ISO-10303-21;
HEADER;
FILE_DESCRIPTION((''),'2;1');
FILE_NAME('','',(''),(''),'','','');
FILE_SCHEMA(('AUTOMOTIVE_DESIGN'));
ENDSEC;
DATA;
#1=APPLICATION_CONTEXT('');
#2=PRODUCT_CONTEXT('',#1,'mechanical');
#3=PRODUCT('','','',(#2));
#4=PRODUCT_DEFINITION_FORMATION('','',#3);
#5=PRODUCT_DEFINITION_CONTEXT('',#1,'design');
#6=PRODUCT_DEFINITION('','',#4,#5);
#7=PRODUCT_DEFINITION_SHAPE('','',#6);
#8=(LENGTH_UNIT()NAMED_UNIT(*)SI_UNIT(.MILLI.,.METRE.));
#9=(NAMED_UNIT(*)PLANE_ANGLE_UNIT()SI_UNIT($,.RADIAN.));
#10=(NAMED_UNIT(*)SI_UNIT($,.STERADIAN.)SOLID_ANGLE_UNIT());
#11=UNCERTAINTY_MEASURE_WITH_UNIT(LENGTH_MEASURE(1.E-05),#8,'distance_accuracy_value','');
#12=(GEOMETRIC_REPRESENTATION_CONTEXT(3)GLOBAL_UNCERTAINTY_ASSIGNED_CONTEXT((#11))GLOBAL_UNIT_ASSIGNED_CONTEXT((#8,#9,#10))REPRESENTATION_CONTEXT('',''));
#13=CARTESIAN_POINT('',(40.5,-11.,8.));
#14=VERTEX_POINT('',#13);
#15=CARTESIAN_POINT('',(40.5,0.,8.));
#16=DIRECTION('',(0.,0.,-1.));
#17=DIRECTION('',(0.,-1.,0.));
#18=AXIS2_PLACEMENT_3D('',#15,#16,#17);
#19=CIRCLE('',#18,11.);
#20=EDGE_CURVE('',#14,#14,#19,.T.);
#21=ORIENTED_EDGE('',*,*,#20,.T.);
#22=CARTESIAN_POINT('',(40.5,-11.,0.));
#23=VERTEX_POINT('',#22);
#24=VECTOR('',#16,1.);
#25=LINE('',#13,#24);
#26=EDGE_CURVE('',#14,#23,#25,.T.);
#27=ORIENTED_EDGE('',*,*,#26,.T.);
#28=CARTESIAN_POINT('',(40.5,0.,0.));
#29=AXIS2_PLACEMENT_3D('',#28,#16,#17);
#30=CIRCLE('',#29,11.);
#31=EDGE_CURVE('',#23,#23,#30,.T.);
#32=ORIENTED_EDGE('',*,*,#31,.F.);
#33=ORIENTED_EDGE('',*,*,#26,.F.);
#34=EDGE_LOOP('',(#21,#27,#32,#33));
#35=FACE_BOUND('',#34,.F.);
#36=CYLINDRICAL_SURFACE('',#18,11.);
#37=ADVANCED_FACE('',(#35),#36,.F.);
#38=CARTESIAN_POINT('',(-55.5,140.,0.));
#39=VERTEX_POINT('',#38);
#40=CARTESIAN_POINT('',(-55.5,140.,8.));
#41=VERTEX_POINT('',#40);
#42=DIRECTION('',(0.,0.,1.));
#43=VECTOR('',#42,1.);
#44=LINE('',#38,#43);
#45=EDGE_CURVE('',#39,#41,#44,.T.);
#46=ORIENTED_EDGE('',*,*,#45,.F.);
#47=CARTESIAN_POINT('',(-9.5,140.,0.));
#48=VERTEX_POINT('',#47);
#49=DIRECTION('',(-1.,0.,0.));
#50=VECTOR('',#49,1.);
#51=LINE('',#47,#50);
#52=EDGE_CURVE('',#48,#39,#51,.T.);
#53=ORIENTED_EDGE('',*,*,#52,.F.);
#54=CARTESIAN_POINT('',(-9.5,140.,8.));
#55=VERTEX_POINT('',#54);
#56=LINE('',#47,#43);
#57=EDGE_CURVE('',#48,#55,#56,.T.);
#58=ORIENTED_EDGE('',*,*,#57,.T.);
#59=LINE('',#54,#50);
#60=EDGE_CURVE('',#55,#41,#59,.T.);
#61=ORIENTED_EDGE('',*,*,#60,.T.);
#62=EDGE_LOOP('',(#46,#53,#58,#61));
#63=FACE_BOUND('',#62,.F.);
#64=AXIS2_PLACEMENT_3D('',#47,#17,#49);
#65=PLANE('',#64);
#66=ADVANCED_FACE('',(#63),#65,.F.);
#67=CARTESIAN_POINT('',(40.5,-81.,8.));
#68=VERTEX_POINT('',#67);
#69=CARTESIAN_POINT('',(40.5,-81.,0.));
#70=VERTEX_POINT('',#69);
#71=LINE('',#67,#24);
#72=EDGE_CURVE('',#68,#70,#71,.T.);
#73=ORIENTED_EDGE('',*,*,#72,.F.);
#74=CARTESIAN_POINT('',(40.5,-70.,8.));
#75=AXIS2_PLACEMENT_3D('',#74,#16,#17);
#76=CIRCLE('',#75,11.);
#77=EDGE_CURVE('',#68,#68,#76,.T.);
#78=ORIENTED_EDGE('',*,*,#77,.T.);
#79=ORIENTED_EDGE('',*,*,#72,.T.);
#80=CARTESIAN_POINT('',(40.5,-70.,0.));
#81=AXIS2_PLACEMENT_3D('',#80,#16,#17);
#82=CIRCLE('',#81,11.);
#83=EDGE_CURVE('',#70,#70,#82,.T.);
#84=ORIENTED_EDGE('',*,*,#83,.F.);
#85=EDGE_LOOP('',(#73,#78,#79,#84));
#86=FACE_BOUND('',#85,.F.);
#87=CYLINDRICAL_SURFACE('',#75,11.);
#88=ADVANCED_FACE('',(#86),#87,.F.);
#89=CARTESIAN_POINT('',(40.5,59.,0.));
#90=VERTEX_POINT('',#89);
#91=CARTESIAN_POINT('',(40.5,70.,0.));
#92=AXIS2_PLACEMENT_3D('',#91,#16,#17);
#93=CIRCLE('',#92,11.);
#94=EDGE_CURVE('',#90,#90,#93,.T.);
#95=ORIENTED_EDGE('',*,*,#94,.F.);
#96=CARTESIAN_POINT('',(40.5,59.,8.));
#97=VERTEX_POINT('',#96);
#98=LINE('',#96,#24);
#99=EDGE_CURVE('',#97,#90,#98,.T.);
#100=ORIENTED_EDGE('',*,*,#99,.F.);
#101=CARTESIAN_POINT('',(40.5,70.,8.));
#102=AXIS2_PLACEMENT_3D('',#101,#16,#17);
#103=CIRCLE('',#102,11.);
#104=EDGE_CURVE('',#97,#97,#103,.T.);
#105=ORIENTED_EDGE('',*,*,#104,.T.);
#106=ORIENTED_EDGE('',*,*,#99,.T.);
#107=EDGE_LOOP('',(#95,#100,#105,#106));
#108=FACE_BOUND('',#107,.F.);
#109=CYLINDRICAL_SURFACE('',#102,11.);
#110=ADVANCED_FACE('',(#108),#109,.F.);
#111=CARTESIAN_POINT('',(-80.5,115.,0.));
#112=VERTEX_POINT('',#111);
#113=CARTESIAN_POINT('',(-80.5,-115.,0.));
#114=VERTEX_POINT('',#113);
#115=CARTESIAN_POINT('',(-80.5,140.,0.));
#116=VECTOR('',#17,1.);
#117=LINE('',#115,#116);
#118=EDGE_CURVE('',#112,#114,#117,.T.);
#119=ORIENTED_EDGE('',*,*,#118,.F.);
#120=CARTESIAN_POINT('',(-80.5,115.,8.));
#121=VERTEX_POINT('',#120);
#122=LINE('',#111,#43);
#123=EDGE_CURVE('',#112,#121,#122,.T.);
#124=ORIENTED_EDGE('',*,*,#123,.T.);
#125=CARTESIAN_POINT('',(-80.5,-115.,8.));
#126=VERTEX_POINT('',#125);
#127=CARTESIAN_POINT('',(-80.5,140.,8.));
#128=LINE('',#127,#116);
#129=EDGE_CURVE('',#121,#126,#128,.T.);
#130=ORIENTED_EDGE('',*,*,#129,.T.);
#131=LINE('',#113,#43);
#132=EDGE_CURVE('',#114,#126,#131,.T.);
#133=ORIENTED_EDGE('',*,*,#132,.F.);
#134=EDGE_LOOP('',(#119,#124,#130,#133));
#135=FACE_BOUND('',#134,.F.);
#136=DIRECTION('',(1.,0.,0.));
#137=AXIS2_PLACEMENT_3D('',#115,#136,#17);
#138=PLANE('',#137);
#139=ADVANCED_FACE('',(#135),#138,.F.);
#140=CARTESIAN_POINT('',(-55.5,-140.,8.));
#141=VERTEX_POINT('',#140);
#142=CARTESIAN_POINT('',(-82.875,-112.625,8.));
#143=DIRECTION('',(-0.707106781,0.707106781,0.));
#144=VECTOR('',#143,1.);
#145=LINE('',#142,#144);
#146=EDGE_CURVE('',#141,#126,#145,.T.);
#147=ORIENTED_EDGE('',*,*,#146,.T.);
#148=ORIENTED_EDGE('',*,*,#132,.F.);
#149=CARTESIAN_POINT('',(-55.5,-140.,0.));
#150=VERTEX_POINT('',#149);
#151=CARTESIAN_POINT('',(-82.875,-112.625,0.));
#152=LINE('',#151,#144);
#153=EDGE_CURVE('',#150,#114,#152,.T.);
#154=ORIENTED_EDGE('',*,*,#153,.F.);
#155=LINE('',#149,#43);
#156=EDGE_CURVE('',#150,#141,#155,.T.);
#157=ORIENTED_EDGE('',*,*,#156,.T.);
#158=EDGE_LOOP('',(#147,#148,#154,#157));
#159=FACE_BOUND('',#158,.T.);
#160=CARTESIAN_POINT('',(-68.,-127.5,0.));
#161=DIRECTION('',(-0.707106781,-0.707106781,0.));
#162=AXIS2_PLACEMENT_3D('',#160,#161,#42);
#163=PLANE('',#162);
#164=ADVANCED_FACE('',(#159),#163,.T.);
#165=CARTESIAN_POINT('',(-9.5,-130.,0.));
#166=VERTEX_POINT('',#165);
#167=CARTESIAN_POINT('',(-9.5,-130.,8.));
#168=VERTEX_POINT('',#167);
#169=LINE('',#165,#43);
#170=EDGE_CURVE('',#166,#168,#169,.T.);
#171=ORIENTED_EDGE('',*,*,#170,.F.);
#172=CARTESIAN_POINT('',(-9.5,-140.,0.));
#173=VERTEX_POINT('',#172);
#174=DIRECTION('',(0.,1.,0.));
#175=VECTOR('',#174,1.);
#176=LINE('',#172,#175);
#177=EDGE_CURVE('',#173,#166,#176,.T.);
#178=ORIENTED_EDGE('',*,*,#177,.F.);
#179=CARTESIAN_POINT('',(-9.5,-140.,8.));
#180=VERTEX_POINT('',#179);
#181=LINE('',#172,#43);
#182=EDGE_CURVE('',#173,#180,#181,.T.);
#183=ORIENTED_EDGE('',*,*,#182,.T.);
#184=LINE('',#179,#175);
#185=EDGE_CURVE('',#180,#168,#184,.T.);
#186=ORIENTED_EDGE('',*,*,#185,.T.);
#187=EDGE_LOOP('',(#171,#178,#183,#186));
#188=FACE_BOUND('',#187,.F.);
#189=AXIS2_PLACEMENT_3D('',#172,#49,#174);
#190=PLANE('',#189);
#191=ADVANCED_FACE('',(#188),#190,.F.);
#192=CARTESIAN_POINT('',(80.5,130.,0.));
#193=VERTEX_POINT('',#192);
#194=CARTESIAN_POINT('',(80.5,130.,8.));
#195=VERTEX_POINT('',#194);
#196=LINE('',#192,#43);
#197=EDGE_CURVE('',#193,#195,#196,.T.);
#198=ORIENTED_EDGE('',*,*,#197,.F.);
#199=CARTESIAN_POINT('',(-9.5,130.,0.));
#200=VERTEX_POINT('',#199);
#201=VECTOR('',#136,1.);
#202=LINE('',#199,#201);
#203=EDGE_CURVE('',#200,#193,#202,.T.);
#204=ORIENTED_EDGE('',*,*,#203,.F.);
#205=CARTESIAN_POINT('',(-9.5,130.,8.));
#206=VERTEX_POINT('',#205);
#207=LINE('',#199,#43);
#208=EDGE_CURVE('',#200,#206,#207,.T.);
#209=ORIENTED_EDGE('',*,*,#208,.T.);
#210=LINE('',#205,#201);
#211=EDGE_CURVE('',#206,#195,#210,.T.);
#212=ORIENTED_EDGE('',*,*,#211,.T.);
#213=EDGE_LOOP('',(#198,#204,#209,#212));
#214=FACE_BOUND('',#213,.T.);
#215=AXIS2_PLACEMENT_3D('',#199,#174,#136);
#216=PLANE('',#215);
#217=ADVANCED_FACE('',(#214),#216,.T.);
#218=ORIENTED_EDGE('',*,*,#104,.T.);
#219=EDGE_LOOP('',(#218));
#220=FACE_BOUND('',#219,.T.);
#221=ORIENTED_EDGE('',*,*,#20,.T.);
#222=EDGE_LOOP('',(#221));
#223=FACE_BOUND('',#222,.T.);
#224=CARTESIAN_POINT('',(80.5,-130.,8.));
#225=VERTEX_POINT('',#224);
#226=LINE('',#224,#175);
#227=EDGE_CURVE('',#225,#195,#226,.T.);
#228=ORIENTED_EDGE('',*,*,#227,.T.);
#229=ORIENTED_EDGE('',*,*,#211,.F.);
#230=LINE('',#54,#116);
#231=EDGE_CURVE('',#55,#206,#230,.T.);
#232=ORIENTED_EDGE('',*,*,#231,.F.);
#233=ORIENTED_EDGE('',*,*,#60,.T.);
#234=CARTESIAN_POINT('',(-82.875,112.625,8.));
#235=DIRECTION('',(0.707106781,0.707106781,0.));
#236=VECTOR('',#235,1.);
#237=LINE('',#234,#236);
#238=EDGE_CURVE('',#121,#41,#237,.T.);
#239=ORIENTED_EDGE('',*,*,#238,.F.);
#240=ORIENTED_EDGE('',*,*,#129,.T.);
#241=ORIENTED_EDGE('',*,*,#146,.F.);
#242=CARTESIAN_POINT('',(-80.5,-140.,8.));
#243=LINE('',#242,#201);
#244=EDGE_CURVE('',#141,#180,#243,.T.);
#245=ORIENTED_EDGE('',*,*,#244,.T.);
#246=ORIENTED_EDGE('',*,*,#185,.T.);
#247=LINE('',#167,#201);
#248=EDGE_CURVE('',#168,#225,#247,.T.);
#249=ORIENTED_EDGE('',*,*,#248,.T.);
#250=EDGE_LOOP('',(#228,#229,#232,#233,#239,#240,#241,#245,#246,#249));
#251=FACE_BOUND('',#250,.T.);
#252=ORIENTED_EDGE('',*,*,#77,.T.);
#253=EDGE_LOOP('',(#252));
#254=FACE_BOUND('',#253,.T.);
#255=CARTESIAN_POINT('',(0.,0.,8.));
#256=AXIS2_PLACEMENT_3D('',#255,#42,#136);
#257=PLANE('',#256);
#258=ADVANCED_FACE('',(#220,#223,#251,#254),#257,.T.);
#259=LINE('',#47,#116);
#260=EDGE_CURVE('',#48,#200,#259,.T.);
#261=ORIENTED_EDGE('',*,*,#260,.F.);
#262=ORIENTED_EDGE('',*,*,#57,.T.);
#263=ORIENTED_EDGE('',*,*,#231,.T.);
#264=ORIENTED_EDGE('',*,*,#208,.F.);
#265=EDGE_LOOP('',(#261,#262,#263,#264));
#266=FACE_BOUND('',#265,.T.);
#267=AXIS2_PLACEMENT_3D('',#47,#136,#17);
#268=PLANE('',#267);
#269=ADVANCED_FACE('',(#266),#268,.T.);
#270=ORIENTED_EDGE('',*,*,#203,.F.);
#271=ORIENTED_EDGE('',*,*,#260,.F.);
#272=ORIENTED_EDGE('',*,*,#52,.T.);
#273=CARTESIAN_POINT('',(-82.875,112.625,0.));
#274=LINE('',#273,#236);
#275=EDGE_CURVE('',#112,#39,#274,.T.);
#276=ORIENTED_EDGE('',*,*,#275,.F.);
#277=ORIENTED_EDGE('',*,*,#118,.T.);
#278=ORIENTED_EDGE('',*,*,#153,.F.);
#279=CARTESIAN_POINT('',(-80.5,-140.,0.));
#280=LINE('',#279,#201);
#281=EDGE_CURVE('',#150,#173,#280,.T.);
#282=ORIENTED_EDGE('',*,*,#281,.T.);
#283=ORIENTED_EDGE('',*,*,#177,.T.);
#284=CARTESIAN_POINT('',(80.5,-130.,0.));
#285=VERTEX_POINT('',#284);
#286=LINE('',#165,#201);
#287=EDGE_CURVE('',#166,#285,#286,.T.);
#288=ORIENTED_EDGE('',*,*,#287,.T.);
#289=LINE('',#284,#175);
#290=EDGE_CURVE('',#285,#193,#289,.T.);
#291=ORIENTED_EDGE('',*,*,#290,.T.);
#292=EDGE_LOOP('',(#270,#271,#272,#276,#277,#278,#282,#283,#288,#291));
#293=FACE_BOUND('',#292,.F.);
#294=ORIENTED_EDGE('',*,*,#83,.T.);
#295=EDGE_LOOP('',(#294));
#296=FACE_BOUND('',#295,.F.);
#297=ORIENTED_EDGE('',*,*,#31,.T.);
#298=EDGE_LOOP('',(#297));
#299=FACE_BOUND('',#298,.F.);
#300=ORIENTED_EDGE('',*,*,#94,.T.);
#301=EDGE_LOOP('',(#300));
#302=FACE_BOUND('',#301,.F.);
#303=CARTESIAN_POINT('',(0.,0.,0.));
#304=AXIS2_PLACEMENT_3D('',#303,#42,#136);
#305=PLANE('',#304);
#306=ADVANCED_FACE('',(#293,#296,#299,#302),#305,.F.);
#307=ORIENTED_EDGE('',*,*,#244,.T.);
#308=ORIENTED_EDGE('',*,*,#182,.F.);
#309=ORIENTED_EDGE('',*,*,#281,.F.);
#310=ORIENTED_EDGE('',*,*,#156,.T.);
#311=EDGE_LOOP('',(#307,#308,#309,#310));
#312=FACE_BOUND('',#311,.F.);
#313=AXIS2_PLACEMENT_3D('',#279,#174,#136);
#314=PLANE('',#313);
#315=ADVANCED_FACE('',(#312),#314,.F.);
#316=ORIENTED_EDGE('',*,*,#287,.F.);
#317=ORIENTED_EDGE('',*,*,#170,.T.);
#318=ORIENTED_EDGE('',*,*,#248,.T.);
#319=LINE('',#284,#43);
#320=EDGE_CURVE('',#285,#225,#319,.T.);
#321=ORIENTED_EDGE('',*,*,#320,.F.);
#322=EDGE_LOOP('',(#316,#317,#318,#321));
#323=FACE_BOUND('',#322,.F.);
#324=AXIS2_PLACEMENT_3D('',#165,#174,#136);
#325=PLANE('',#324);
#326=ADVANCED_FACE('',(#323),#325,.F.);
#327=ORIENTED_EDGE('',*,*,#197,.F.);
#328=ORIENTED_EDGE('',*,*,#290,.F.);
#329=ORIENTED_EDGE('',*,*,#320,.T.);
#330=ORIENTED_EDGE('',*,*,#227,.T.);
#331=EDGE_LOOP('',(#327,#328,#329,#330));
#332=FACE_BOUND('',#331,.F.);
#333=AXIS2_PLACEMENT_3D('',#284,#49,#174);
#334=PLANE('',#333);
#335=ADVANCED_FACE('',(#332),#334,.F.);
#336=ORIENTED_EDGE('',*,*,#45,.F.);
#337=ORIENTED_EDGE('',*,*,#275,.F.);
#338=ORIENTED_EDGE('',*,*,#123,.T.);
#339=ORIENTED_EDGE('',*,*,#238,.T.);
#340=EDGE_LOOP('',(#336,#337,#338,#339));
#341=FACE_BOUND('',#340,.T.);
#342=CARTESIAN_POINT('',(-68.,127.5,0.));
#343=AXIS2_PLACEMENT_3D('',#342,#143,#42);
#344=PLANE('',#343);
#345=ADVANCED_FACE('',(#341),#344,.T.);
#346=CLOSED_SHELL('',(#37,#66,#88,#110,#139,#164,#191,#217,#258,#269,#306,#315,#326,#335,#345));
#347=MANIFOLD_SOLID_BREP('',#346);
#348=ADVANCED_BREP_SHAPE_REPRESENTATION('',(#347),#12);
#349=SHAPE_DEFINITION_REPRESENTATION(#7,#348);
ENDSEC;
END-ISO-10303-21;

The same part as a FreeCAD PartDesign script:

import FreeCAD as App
import Part
import Sketcher


def edges_at(feature, points):
    """Names of the edges that pass closest to the given points."""
    edges = feature.Shape.Edges
    near = lambda p: min(range(len(edges)), key=lambda i: edges[i].distToShape(Part.Vertex(*p))[0])
    return sorted({f"Edge{near(p) + 1}" for p in points})


def add_polygon(sketch, points):
    """Adds a closed chain of lines whose ends are joined by coincident constraints."""
    first, n = sketch.GeometryCount, len(points)
    for a, b in zip(points, points[1:] + points[:1]):
        sketch.addGeometry(Part.LineSegment(App.Vector(*a, 0), App.Vector(*b, 0)), False)
    for i in range(n):
        sketch.addConstraint(Sketcher.Constraint("Coincident", first + i, 2, first + (i + 1) % n, 1))

doc = App.newDocument("Part")
body = doc.addObject("PartDesign::Body", "Body")

sketch1 = body.newObject("Sketcher::SketchObject", "Sketch")
sketch1.AttachmentSupport = (doc.getObject("XY_Plane"), [""])
sketch1.MapMode = "FlatFace"
add_polygon(sketch1, [(-9.5, 130), (-9.5, 140), (-80.5, 140), (-80.5, -140), (-9.5, -140), (-9.5, -130), (80.5, -130), (80.5, 130)])
sketch1.addConstraint([
    Sketcher.Constraint("Vertical", 0),
    Sketcher.Constraint("Horizontal", 1),
    Sketcher.Constraint("Vertical", 2),
    Sketcher.Constraint("Horizontal", 3),
    Sketcher.Constraint("Vertical", 4),
    Sketcher.Constraint("Horizontal", 5),
    Sketcher.Constraint("Vertical", 6),
    Sketcher.Constraint("Horizontal", 7),
    Sketcher.Constraint("Symmetric", 0, 2, 3, 2, -1),
    Sketcher.Constraint("Equal", 0, 4),
    Sketcher.Constraint("DistanceY", 2, 2, 2, 1, 280.0),
    Sketcher.Constraint("DistanceX", 1, 2, 1, 1, 71.0),
    Sketcher.Constraint("DistanceX", 5, 1, 5, 2, 90.0),
    Sketcher.Constraint("DistanceY", 0, 1, 0, 2, 10.0),
    Sketcher.Constraint("DistanceX", 0, 2, -1, 1, 9.5),
])
pad1 = body.newObject("PartDesign::Pad", "Pad")
pad1.Profile = sketch1
pad1.Length = 8
doc.recompute()

chamfer = body.newObject("PartDesign::Chamfer", "Chamfer")
chamfer.Base = (pad1, edges_at(pad1, [(-80.5, -140, 4), (-80.5, 140, 4)]))
chamfer.Size = 25

sketch2 = body.newObject("Sketcher::SketchObject", "Sketch001")
sketch2.AttachmentSupport = (doc.getObject("XY_Plane"), [""])
sketch2.MapMode = "FlatFace"
sketch2.AttachmentOffset = App.Placement(App.Vector(0, 0, 8), App.Rotation())
sketch2.addGeometry([
    Part.Circle(App.Vector(40.5, 70, 0), App.Vector(0, 0, 1), 11),
    Part.Circle(App.Vector(40.5, 0, 0), App.Vector(0, 0, 1), 11),
    Part.Circle(App.Vector(40.5, -70, 0), App.Vector(0, 0, 1), 11),
], False)
sketch2.addConstraint([
    Sketcher.Constraint("Equal", 0, 1),
    Sketcher.Constraint("Equal", 1, 2),
    Sketcher.Constraint("Symmetric", 0, 3, 2, 3, -1),
    Sketcher.Constraint("PointOnObject", 1, 3, -1),
    Sketcher.Constraint("Vertical", 0, 3, 1, 3),
    Sketcher.Constraint("Diameter", 0, 22.0),
    Sketcher.Constraint("DistanceY", -1, 1, 0, 3, 70.0),
    Sketcher.Constraint("DistanceX", -1, 1, 0, 3, 40.5),
])
doc.recompute()
hole = body.newObject("PartDesign::Hole", "Hole")
hole.Profile = sketch2
hole.ThreadType = "None"
hole.Diameter = 22
hole.DepthType = "ThroughAll"

doc.recompute()
